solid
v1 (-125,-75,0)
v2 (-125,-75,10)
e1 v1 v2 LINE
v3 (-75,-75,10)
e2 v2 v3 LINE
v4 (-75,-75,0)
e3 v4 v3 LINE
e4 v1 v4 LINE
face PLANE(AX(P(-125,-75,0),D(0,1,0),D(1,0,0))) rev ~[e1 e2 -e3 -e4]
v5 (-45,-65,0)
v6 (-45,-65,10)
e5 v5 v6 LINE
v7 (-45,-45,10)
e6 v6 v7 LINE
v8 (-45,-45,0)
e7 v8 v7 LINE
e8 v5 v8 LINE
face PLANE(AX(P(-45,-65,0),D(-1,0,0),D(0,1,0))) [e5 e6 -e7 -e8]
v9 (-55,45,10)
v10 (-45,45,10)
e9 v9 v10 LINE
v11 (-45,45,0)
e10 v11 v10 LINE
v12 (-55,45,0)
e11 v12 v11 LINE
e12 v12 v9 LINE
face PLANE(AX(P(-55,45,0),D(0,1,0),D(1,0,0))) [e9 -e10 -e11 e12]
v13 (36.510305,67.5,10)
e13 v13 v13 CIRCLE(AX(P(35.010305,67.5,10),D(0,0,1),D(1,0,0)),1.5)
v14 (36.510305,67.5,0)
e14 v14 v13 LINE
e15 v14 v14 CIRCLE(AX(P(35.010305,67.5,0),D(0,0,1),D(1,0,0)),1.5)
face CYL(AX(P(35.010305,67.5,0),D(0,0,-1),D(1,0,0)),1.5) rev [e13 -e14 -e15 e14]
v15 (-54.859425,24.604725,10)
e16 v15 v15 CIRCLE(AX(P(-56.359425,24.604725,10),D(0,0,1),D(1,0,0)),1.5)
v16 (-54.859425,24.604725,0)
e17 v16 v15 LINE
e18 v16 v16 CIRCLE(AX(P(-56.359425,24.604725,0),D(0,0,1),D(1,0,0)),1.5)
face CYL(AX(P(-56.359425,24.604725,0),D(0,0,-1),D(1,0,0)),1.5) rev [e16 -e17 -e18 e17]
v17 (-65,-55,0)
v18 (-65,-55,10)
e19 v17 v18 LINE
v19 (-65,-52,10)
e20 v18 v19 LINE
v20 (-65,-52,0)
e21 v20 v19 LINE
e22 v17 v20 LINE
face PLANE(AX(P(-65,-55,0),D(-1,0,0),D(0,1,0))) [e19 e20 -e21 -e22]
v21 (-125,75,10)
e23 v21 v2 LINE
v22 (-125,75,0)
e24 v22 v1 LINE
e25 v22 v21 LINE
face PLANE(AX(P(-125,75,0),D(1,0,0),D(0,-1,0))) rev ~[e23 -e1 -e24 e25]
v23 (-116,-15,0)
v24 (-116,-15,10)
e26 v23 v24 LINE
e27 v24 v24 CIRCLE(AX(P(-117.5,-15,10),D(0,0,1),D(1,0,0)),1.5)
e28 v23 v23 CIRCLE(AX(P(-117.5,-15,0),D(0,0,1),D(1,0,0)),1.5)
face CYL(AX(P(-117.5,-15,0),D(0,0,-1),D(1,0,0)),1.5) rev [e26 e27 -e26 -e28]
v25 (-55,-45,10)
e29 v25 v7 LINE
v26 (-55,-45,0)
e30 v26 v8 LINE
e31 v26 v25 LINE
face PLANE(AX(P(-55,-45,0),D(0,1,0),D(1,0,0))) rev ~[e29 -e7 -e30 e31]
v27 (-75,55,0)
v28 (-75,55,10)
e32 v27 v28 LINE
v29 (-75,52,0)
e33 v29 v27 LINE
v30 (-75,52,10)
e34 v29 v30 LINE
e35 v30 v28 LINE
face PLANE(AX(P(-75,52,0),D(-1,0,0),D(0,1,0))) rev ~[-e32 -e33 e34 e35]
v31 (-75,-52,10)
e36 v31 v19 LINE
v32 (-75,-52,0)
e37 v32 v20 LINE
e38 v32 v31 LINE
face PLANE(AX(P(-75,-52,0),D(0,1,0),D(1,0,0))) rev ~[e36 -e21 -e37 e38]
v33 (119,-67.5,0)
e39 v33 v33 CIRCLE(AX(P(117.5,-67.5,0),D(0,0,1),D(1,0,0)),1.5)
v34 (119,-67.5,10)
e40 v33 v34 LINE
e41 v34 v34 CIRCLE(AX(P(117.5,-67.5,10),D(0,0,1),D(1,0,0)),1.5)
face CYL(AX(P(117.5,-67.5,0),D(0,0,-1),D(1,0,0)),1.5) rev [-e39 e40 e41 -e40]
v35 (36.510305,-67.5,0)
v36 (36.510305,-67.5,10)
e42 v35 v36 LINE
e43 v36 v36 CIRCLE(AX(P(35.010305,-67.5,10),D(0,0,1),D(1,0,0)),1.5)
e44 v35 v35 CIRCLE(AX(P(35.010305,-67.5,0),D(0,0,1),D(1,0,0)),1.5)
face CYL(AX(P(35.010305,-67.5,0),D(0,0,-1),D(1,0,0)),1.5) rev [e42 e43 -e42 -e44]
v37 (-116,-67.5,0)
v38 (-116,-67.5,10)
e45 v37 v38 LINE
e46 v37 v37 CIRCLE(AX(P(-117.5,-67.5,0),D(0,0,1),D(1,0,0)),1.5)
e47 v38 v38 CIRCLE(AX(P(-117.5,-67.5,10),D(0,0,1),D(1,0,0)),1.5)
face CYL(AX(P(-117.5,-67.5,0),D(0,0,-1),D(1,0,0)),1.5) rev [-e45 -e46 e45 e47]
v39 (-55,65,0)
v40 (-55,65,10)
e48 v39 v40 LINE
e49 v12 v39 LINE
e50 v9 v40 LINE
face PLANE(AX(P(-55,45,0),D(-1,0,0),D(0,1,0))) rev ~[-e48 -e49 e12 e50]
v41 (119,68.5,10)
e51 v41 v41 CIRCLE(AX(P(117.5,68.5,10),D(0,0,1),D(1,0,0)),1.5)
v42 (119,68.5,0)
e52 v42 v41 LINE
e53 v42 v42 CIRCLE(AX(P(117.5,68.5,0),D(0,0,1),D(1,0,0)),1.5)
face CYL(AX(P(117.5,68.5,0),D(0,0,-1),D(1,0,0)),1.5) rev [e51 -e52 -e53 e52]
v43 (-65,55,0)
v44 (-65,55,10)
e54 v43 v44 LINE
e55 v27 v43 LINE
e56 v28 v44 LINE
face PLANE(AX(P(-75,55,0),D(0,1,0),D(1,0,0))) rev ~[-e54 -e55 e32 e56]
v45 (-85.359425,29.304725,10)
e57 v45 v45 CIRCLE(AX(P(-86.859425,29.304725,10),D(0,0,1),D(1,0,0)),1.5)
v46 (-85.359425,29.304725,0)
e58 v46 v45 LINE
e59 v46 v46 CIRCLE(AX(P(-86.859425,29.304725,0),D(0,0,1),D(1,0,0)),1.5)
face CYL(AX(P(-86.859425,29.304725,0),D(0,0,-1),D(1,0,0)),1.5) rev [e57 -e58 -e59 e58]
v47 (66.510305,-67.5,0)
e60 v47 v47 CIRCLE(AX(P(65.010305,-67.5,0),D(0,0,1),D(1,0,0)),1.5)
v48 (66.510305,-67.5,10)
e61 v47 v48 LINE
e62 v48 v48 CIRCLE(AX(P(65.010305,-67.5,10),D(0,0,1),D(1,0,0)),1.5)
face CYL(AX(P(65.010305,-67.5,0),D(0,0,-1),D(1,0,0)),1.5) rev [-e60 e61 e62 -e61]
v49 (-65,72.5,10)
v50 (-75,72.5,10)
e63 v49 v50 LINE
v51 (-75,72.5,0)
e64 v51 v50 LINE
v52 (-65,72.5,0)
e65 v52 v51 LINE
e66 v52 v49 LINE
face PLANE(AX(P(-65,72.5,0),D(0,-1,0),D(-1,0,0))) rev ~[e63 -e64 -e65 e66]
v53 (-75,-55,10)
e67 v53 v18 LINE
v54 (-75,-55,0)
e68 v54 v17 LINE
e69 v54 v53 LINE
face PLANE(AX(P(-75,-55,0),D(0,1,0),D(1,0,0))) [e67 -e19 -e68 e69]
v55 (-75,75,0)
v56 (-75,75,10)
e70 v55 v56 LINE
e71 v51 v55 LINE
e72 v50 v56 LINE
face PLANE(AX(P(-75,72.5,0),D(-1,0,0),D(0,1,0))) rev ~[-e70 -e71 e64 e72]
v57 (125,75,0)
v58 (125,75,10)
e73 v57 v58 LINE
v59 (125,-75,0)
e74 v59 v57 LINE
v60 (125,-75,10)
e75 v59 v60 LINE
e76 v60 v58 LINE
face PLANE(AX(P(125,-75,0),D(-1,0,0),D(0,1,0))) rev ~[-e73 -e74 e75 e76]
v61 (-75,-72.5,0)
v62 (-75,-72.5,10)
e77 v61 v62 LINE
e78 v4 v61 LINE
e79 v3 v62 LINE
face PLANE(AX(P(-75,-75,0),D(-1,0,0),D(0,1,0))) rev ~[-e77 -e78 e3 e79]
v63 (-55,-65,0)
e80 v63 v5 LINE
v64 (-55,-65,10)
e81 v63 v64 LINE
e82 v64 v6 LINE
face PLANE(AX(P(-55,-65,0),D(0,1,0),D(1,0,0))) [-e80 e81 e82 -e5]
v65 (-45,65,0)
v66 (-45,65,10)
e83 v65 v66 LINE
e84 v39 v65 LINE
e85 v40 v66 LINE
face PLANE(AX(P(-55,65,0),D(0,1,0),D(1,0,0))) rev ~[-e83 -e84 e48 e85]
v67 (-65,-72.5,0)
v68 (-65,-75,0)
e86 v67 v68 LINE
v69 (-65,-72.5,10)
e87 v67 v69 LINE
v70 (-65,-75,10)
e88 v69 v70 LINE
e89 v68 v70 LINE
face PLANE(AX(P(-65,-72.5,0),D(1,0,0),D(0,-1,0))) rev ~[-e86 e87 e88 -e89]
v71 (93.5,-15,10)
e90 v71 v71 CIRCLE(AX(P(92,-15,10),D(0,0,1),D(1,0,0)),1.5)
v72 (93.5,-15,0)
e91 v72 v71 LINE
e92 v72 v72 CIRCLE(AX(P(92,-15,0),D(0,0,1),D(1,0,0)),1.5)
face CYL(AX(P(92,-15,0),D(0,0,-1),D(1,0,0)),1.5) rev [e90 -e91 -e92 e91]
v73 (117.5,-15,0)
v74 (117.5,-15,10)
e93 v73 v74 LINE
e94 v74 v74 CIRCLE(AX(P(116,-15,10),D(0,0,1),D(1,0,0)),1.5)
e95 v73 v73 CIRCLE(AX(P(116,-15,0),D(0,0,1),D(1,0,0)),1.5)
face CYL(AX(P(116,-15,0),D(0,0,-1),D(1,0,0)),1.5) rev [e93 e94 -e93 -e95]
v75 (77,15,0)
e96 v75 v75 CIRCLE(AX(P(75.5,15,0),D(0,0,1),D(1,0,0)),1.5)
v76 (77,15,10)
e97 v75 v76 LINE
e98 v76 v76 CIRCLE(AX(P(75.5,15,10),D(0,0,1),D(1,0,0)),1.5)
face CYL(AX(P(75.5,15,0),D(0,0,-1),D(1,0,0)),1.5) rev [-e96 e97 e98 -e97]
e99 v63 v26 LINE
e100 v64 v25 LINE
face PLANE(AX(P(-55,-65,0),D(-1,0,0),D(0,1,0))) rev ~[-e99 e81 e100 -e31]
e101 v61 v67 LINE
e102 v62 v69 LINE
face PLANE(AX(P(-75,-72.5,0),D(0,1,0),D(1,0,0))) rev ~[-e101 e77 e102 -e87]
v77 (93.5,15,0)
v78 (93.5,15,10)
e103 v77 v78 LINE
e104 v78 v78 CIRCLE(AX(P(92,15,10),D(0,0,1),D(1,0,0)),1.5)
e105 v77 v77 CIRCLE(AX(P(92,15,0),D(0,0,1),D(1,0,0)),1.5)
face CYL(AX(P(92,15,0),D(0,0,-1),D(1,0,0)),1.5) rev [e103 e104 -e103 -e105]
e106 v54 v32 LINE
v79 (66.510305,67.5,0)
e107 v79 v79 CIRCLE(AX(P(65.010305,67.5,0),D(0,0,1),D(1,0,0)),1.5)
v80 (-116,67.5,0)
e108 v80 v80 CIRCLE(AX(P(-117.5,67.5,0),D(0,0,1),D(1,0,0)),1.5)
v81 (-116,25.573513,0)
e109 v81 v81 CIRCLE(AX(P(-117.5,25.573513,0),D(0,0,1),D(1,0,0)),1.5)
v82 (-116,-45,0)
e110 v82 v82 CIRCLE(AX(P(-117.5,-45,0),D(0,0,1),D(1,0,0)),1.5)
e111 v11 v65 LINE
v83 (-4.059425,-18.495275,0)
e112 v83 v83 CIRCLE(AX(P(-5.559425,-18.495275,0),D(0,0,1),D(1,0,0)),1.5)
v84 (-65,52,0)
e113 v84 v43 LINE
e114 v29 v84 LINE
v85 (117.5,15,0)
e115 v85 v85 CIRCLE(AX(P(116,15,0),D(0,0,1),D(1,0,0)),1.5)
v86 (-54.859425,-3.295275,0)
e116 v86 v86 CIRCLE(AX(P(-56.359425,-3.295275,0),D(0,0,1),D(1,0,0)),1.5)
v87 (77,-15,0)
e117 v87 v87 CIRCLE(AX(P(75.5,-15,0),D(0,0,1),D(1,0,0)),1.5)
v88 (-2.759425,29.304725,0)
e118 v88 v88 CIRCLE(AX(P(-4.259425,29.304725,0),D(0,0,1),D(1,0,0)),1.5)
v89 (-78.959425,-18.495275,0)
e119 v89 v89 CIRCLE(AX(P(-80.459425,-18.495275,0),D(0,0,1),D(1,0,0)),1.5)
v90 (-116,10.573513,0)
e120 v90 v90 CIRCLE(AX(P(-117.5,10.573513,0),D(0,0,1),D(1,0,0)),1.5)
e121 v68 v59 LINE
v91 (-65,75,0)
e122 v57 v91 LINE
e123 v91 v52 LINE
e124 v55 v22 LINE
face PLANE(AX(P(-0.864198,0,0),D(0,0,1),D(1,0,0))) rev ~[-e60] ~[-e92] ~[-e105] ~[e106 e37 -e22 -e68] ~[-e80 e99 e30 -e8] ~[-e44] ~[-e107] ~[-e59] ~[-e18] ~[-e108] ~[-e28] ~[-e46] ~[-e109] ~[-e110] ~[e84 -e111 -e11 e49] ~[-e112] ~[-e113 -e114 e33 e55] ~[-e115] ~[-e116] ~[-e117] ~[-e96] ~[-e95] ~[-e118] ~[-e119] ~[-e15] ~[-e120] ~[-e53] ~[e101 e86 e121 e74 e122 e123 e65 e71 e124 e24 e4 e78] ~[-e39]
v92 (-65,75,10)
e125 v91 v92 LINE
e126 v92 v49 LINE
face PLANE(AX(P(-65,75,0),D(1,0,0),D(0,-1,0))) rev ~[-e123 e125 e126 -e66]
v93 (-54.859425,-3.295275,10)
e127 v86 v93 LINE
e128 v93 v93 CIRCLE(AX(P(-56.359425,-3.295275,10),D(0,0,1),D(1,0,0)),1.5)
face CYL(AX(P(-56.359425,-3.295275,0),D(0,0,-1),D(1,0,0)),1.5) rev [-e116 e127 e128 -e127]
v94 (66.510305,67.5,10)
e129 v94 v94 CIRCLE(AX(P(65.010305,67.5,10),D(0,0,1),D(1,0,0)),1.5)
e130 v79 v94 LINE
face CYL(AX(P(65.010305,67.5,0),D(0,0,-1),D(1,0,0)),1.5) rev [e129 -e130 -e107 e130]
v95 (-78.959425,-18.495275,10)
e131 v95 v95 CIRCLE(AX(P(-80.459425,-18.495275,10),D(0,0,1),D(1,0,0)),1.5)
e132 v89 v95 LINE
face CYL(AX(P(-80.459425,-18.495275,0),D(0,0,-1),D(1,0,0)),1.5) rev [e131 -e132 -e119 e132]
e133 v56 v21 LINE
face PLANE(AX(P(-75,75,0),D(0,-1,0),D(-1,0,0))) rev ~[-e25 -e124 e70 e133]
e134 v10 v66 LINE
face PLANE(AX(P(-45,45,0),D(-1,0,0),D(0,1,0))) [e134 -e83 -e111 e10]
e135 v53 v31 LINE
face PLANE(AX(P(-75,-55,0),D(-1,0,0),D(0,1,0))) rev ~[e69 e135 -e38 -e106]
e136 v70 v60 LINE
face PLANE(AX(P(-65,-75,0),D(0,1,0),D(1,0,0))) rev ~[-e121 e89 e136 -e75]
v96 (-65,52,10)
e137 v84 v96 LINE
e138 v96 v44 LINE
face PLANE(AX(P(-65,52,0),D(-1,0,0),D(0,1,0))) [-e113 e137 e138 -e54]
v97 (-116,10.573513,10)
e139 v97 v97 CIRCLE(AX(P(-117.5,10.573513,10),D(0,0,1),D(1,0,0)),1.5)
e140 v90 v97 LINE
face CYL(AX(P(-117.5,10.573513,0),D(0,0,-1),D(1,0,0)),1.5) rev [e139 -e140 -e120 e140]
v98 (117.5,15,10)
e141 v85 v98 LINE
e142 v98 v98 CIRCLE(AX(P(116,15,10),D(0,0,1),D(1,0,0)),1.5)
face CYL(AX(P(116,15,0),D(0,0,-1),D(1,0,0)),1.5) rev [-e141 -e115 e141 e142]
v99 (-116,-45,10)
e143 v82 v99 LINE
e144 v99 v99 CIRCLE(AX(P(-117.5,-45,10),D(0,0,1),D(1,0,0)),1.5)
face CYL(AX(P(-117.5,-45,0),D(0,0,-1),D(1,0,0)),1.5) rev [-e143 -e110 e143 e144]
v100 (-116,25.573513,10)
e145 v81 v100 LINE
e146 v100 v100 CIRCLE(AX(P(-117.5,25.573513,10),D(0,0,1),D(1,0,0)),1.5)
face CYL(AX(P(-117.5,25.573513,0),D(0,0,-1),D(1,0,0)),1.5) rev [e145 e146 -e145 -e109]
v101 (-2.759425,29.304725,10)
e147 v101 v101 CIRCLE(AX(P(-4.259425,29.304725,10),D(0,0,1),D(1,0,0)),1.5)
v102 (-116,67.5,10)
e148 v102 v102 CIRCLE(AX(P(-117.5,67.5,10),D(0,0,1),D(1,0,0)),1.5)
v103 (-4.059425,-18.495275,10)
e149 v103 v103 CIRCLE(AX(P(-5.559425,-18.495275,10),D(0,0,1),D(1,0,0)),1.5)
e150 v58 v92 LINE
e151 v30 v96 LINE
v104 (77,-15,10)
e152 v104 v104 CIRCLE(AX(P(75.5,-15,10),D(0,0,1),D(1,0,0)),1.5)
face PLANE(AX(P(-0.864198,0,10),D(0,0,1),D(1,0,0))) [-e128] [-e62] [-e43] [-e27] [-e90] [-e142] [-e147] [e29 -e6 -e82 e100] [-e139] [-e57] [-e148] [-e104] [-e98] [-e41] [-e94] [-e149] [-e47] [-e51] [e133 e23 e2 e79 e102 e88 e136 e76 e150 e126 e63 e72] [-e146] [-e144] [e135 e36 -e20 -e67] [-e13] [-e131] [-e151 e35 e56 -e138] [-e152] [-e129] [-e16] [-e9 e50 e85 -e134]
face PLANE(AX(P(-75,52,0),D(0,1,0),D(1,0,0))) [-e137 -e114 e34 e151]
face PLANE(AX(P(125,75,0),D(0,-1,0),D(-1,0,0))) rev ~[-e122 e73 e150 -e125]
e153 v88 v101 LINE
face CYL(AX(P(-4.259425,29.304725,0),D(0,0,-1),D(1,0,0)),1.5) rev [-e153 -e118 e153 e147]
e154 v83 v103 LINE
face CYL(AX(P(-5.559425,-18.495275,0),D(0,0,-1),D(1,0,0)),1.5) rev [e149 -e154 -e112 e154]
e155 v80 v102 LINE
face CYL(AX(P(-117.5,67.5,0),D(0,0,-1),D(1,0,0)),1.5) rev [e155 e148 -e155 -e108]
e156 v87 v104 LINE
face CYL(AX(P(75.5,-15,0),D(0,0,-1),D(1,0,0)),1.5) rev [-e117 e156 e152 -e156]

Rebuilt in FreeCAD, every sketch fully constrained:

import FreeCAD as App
import Part
import Sketcher
from FreeCAD import Vector


def add_polygon(sketch, points):
    """Adds a closed chain of lines whose ends are joined by coincident constraints."""
    first, n = sketch.GeometryCount, len(points)
    for a, b in zip(points, points[1:] + points[:1]):
        sketch.addGeometry(Part.LineSegment(App.Vector(*a, 0), App.Vector(*b, 0)), False)
    for i in range(n):
        sketch.addConstraint(Sketcher.Constraint("Coincident", first + i, 2, first + (i + 1) % n, 1))

doc = App.newDocument("Part")
body = doc.addObject("PartDesign::Body", "Body")

# Sketch on XY plane
sketch1 = body.newObject("Sketcher::SketchObject", "Sketch")
sketch1.AttachmentSupport = (doc.getObject("XY_Plane"), [""])
sketch1.MapMode = "FlatFace"
add_polygon(sketch1, [(-125, -75), (-75, -75), (-75, -72.5), (-65, -72.5), (-65, -75), (125, -75), (125, 75), (-65, 75), (-65, 72.5), (-75, 72.5), (-75, 75), (-125, 75)])  # lines 0-11
sketch1.addGeometry(Part.Circle(Vector(-117.5, -67.5, 0), Vector(0, 0, 1), 1.5), False)  # 12
add_polygon(sketch1, [(-65, -55), (-75, -55), (-75, -52), (-65, -52)])  # lines 13-16
sketch1.addGeometry(Part.Circle(Vector(-117.5, -45, 0), Vector(0, 0, 1), 1.5), False)  # 17
add_polygon(sketch1, [(-45, -65), (-55, -65), (-55, -45), (-45, -45)])  # lines 18-21
sketch1.addGeometry(Part.Circle(Vector(-80.459425, -18.495275, 0), Vector(0, 0, 1), 1.5), False)  # 22
sketch1.addGeometry(Part.Circle(Vector(-117.5, -15, 0), Vector(0, 0, 1), 1.5), False)  # 23
sketch1.addGeometry(Part.Circle(Vector(-5.559425, -18.495275, 0), Vector(0, 0, 1), 1.5), False)  # 24
sketch1.addGeometry(Part.Circle(Vector(-56.359425, -3.295275, 0), Vector(0, 0, 1), 1.5), False)  # 25
sketch1.addGeometry(Part.Circle(Vector(35.010305, -67.5, 0), Vector(0, 0, 1), 1.5), False)  # 26
sketch1.addGeometry(Part.Circle(Vector(65.010305, -67.5, 0), Vector(0, 0, 1), 1.5), False)  # 27
sketch1.addGeometry(Part.Circle(Vector(117.5, -67.5, 0), Vector(0, 0, 1), 1.5), False)  # 28
sketch1.addGeometry(Part.Circle(Vector(75.5, -15, 0), Vector(0, 0, 1), 1.5), False)  # 29
sketch1.addGeometry(Part.Circle(Vector(92, -15, 0), Vector(0, 0, 1), 1.5), False)  # 30
sketch1.addGeometry(Part.Circle(Vector(116, -15, 0), Vector(0, 0, 1), 1.5), False)  # 31
sketch1.addGeometry(Part.Circle(Vector(-117.5, 10.573513, 0), Vector(0, 0, 1), 1.5), False)  # 32
sketch1.addGeometry(Part.Circle(Vector(-117.5, 25.573513, 0), Vector(0, 0, 1), 1.5), False)  # 33
sketch1.addGeometry(Part.Circle(Vector(-86.859425, 29.304725, 0), Vector(0, 0, 1), 1.5), False)  # 34
sketch1.addGeometry(Part.Circle(Vector(-56.359425, 24.604725, 0), Vector(0, 0, 1), 1.5), False)  # 35
sketch1.addGeometry(Part.Circle(Vector(-4.259425, 29.304725, 0), Vector(0, 0, 1), 1.5), False)  # 36
sketch1.addGeometry(Part.Circle(Vector(-117.5, 67.5, 0), Vector(0, 0, 1), 1.5), False)  # 37
add_polygon(sketch1, [(-65, 52), (-75, 52), (-75, 55), (-65, 55)])  # lines 38-41
add_polygon(sketch1, [(-45, 45), (-55, 45), (-55, 65), (-45, 65)])  # lines 42-45
sketch1.addGeometry(Part.Circle(Vector(75.5, 15, 0), Vector(0, 0, 1), 1.5), False)  # 46
sketch1.addGeometry(Part.Circle(Vector(92, 15, 0), Vector(0, 0, 1), 1.5), False)  # 47
sketch1.addGeometry(Part.Circle(Vector(116, 15, 0), Vector(0, 0, 1), 1.5), False)  # 48
sketch1.addGeometry(Part.Circle(Vector(35.010305, 67.5, 0), Vector(0, 0, 1), 1.5), False)  # 49
sketch1.addGeometry(Part.Circle(Vector(65.010305, 67.5, 0), Vector(0, 0, 1), 1.5), False)  # 50
sketch1.addGeometry(Part.Circle(Vector(117.5, 68.5, 0), Vector(0, 0, 1), 1.5), False)  # 51
sketch1.addConstraint([
    Sketcher.Constraint("Horizontal", 0),
    Sketcher.Constraint("Vertical", 1),
    Sketcher.Constraint("Horizontal", 2),
    Sketcher.Constraint("Vertical", 3),
    Sketcher.Constraint("Horizontal", 4),
    Sketcher.Constraint("Vertical", 5),
    Sketcher.Constraint("Horizontal", 6),
    Sketcher.Constraint("Vertical", 7),
    Sketcher.Constraint("Horizontal", 8),
    Sketcher.Constraint("Vertical", 9),
    Sketcher.Constraint("Horizontal", 10),
    Sketcher.Constraint("Vertical", 11),
    Sketcher.Constraint("Horizontal", 13),
    Sketcher.Constraint("Vertical", 14),
    Sketcher.Constraint("Horizontal", 15),
    Sketcher.Constraint("Vertical", 16),
    Sketcher.Constraint("Horizontal", 18),
    Sketcher.Constraint("Vertical", 19),
    Sketcher.Constraint("Horizontal", 20),
    Sketcher.Constraint("Vertical", 21),
    Sketcher.Constraint("Horizontal", 38),
    Sketcher.Constraint("Vertical", 39),
    Sketcher.Constraint("Horizontal", 40),
    Sketcher.Constraint("Vertical", 41),
    Sketcher.Constraint("Horizontal", 42),
    Sketcher.Constraint("Vertical", 43),
    Sketcher.Constraint("Horizontal", 44),
    Sketcher.Constraint("Vertical", 45),
    Sketcher.Constraint("Equal", 12, 17),
    Sketcher.Constraint("Equal", 17, 22),
    Sketcher.Constraint("Equal", 22, 23),
    Sketcher.Constraint("Equal", 23, 24),
    Sketcher.Constraint("Equal", 24, 25),
    Sketcher.Constraint("Equal", 25, 26),
    Sketcher.Constraint("Equal", 26, 27),
    Sketcher.Constraint("Equal", 27, 28),
    Sketcher.Constraint("Equal", 28, 29),
    Sketcher.Constraint("Equal", 29, 30),
    Sketcher.Constraint("Equal", 30, 31),
    Sketcher.Constraint("Equal", 31, 32),
    Sketcher.Constraint("Equal", 32, 33),
    Sketcher.Constraint("Equal", 33, 34),
    Sketcher.Constraint("Equal", 34, 35),
    Sketcher.Constraint("Equal", 35, 36),
    Sketcher.Constraint("Equal", 36, 37),
    Sketcher.Constraint("Equal", 37, 46),
    Sketcher.Constraint("Equal", 46, 47),
    Sketcher.Constraint("Equal", 47, 48),
    Sketcher.Constraint("Equal", 48, 49),
    Sketcher.Constraint("Equal", 49, 50),
    Sketcher.Constraint("Equal", 50, 51),
    Sketcher.Constraint("Symmetric", 28, 3, 37, 3, -1, 1),
    Sketcher.Constraint("Symmetric", 4, 2, 10, 2, -1, 1),
    Sketcher.Constraint("Symmetric", 12, 3, 28, 3, -2),
    Sketcher.Constraint("Symmetric", 29, 3, 46, 3, -1),
    Sketcher.Constraint("Symmetric", 30, 3, 47, 3, -1),
    Sketcher.Constraint("Symmetric", 31, 3, 48, 3, -1),
    Sketcher.Constraint("Symmetric", 26, 3, 49, 3, -1),
    Sketcher.Constraint("Symmetric", 27, 3, 50, 3, -1),
    Sketcher.Constraint("Symmetric", 3, 2, 6, 2, -1),
    Sketcher.Constraint("Symmetric", 1, 2, 8, 2, -1),
    Sketcher.Constraint("Symmetric", 14, 2, 38, 2, -1),
    Sketcher.Constraint("Symmetric", 16, 2, 40, 2, -1),
    Sketcher.Constraint("Symmetric", 19, 2, 42, 2, -1),
    Sketcher.Constraint("Symmetric", 21, 2, 44, 2, -1),
    Sketcher.Constraint("Horizontal", 22, 3, 24, 3),
    Sketcher.Constraint("Horizontal", 12, 3, 26, 3),
    Sketcher.Constraint("Horizontal", 26, 3, 27, 3),
    Sketcher.Constraint("Horizontal", 23, 3, 29, 3),
    Sketcher.Constraint("Horizontal", 29, 3, 30, 3),
    Sketcher.Constraint("Horizontal", 30, 3, 31, 3),
    Sketcher.Constraint("Horizontal", 34, 3, 36, 3),
    Sketcher.Constraint("Horizontal", 0, 2, 3, 2),
    Sketcher.Constraint("Horizontal", 17, 3, 19, 2),
    Sketcher.Constraint("Vertical", 12, 3, 17, 3),
    Sketcher.Constraint("Vertical", 17, 3, 23, 3),
    Sketcher.Constraint("Vertical", 23, 3, 32, 3),
    Sketcher.Constraint("Vertical", 32, 3, 33, 3),
    Sketcher.Constraint("Vertical", 25, 3, 35, 3),
    Sketcher.Constraint("Vertical", 28, 3, 51, 3),
    Sketcher.Constraint("Vertical", 9, 2, 13, 2),
    Sketcher.Constraint("Vertical", 7, 2, 15, 2),
    Sketcher.Constraint("Equal", 15, 18),
    Sketcher.Constraint("Diameter", 12, 3.0),
    Sketcher.Constraint("DistanceX", 0, 1, 0, 2, 50.0),
    Sketcher.Constraint("DistanceX", 2, 1, 2, 2, 10.0),
    Sketcher.Constraint("DistanceX", 4, 1, 4, 2, 190.0),
    Sketcher.Constraint("DistanceY", 5, 1, 5, 2, 150.0),
    Sketcher.Constraint("DistanceY", 14, 1, 14, 2, 3.0),
    Sketcher.Constraint("DistanceY", 19, 1, 19, 2, 20.0),
    Sketcher.Constraint("DistanceY", 1, 1, 1, 2, 2.5),
    Sketcher.Constraint("DistanceY", 17, 3, -1, 1, 45.0),
    Sketcher.Constraint("DistanceY", 23, 3, -1, 1, 15.0),
    Sketcher.Constraint("DistanceX", -1, 1, 30, 3, 92.0),
    Sketcher.Constraint("DistanceX", -1, 1, 31, 3, 116.0),
    Sketcher.Constraint("DistanceY", 13, 2, -1, 1, 55.0),
    Sketcher.Constraint("DistanceX", 18, 2, -1, 1, 55.0),
    Sketcher.Constraint("DistanceX", 26, 3, 27, 3, 30.0),
    Sketcher.Constraint("DistanceX", 29, 3, 28, 3, 42.0),
    Sketcher.Constraint("DistanceY", 32, 3, 33, 3, 15.0),
    Sketcher.Constraint("DistanceY", 50, 3, 51, 3, 1.0),
    Sketcher.Constraint("DistanceY", 1, 2, 12, 3, 5.0),
    Sketcher.Constraint("DistanceX", 12, 3, -1, 1, 117.5),
    Sketcher.Constraint("DistanceX", 22, 3, 24, 3, 74.9),
    Sketcher.Constraint("DistanceX", 22, 3, 25, 3, 24.1),
    Sketcher.Constraint("DistanceY", 22, 3, 25, 3, 15.2),
    Sketcher.Constraint("DistanceX", 34, 3, 25, 3, 30.5),
    Sketcher.Constraint("DistanceY", 25, 3, 34, 3, 32.6),
    Sketcher.Constraint("DistanceY", 25, 3, 35, 3, 27.9),
    Sketcher.Constraint("DistanceX", 24, 3, 36, 3, 1.3),
    Sketcher.Constraint("DistanceX", 24, 3, 26, 3, 40.56973),
    Sketcher.Constraint("DistanceX", 22, 3, -1, 1, 80.459425),
    Sketcher.Constraint("DistanceY", 22, 3, -1, 1, 18.495275),
    Sketcher.Constraint("DistanceY", -1, 1, 32, 3, 10.573513),
])
pad1 = body.newObject("PartDesign::Pad", "Pad")
pad1.Profile = sketch1
pad1.Length = 10

doc.recompute()
